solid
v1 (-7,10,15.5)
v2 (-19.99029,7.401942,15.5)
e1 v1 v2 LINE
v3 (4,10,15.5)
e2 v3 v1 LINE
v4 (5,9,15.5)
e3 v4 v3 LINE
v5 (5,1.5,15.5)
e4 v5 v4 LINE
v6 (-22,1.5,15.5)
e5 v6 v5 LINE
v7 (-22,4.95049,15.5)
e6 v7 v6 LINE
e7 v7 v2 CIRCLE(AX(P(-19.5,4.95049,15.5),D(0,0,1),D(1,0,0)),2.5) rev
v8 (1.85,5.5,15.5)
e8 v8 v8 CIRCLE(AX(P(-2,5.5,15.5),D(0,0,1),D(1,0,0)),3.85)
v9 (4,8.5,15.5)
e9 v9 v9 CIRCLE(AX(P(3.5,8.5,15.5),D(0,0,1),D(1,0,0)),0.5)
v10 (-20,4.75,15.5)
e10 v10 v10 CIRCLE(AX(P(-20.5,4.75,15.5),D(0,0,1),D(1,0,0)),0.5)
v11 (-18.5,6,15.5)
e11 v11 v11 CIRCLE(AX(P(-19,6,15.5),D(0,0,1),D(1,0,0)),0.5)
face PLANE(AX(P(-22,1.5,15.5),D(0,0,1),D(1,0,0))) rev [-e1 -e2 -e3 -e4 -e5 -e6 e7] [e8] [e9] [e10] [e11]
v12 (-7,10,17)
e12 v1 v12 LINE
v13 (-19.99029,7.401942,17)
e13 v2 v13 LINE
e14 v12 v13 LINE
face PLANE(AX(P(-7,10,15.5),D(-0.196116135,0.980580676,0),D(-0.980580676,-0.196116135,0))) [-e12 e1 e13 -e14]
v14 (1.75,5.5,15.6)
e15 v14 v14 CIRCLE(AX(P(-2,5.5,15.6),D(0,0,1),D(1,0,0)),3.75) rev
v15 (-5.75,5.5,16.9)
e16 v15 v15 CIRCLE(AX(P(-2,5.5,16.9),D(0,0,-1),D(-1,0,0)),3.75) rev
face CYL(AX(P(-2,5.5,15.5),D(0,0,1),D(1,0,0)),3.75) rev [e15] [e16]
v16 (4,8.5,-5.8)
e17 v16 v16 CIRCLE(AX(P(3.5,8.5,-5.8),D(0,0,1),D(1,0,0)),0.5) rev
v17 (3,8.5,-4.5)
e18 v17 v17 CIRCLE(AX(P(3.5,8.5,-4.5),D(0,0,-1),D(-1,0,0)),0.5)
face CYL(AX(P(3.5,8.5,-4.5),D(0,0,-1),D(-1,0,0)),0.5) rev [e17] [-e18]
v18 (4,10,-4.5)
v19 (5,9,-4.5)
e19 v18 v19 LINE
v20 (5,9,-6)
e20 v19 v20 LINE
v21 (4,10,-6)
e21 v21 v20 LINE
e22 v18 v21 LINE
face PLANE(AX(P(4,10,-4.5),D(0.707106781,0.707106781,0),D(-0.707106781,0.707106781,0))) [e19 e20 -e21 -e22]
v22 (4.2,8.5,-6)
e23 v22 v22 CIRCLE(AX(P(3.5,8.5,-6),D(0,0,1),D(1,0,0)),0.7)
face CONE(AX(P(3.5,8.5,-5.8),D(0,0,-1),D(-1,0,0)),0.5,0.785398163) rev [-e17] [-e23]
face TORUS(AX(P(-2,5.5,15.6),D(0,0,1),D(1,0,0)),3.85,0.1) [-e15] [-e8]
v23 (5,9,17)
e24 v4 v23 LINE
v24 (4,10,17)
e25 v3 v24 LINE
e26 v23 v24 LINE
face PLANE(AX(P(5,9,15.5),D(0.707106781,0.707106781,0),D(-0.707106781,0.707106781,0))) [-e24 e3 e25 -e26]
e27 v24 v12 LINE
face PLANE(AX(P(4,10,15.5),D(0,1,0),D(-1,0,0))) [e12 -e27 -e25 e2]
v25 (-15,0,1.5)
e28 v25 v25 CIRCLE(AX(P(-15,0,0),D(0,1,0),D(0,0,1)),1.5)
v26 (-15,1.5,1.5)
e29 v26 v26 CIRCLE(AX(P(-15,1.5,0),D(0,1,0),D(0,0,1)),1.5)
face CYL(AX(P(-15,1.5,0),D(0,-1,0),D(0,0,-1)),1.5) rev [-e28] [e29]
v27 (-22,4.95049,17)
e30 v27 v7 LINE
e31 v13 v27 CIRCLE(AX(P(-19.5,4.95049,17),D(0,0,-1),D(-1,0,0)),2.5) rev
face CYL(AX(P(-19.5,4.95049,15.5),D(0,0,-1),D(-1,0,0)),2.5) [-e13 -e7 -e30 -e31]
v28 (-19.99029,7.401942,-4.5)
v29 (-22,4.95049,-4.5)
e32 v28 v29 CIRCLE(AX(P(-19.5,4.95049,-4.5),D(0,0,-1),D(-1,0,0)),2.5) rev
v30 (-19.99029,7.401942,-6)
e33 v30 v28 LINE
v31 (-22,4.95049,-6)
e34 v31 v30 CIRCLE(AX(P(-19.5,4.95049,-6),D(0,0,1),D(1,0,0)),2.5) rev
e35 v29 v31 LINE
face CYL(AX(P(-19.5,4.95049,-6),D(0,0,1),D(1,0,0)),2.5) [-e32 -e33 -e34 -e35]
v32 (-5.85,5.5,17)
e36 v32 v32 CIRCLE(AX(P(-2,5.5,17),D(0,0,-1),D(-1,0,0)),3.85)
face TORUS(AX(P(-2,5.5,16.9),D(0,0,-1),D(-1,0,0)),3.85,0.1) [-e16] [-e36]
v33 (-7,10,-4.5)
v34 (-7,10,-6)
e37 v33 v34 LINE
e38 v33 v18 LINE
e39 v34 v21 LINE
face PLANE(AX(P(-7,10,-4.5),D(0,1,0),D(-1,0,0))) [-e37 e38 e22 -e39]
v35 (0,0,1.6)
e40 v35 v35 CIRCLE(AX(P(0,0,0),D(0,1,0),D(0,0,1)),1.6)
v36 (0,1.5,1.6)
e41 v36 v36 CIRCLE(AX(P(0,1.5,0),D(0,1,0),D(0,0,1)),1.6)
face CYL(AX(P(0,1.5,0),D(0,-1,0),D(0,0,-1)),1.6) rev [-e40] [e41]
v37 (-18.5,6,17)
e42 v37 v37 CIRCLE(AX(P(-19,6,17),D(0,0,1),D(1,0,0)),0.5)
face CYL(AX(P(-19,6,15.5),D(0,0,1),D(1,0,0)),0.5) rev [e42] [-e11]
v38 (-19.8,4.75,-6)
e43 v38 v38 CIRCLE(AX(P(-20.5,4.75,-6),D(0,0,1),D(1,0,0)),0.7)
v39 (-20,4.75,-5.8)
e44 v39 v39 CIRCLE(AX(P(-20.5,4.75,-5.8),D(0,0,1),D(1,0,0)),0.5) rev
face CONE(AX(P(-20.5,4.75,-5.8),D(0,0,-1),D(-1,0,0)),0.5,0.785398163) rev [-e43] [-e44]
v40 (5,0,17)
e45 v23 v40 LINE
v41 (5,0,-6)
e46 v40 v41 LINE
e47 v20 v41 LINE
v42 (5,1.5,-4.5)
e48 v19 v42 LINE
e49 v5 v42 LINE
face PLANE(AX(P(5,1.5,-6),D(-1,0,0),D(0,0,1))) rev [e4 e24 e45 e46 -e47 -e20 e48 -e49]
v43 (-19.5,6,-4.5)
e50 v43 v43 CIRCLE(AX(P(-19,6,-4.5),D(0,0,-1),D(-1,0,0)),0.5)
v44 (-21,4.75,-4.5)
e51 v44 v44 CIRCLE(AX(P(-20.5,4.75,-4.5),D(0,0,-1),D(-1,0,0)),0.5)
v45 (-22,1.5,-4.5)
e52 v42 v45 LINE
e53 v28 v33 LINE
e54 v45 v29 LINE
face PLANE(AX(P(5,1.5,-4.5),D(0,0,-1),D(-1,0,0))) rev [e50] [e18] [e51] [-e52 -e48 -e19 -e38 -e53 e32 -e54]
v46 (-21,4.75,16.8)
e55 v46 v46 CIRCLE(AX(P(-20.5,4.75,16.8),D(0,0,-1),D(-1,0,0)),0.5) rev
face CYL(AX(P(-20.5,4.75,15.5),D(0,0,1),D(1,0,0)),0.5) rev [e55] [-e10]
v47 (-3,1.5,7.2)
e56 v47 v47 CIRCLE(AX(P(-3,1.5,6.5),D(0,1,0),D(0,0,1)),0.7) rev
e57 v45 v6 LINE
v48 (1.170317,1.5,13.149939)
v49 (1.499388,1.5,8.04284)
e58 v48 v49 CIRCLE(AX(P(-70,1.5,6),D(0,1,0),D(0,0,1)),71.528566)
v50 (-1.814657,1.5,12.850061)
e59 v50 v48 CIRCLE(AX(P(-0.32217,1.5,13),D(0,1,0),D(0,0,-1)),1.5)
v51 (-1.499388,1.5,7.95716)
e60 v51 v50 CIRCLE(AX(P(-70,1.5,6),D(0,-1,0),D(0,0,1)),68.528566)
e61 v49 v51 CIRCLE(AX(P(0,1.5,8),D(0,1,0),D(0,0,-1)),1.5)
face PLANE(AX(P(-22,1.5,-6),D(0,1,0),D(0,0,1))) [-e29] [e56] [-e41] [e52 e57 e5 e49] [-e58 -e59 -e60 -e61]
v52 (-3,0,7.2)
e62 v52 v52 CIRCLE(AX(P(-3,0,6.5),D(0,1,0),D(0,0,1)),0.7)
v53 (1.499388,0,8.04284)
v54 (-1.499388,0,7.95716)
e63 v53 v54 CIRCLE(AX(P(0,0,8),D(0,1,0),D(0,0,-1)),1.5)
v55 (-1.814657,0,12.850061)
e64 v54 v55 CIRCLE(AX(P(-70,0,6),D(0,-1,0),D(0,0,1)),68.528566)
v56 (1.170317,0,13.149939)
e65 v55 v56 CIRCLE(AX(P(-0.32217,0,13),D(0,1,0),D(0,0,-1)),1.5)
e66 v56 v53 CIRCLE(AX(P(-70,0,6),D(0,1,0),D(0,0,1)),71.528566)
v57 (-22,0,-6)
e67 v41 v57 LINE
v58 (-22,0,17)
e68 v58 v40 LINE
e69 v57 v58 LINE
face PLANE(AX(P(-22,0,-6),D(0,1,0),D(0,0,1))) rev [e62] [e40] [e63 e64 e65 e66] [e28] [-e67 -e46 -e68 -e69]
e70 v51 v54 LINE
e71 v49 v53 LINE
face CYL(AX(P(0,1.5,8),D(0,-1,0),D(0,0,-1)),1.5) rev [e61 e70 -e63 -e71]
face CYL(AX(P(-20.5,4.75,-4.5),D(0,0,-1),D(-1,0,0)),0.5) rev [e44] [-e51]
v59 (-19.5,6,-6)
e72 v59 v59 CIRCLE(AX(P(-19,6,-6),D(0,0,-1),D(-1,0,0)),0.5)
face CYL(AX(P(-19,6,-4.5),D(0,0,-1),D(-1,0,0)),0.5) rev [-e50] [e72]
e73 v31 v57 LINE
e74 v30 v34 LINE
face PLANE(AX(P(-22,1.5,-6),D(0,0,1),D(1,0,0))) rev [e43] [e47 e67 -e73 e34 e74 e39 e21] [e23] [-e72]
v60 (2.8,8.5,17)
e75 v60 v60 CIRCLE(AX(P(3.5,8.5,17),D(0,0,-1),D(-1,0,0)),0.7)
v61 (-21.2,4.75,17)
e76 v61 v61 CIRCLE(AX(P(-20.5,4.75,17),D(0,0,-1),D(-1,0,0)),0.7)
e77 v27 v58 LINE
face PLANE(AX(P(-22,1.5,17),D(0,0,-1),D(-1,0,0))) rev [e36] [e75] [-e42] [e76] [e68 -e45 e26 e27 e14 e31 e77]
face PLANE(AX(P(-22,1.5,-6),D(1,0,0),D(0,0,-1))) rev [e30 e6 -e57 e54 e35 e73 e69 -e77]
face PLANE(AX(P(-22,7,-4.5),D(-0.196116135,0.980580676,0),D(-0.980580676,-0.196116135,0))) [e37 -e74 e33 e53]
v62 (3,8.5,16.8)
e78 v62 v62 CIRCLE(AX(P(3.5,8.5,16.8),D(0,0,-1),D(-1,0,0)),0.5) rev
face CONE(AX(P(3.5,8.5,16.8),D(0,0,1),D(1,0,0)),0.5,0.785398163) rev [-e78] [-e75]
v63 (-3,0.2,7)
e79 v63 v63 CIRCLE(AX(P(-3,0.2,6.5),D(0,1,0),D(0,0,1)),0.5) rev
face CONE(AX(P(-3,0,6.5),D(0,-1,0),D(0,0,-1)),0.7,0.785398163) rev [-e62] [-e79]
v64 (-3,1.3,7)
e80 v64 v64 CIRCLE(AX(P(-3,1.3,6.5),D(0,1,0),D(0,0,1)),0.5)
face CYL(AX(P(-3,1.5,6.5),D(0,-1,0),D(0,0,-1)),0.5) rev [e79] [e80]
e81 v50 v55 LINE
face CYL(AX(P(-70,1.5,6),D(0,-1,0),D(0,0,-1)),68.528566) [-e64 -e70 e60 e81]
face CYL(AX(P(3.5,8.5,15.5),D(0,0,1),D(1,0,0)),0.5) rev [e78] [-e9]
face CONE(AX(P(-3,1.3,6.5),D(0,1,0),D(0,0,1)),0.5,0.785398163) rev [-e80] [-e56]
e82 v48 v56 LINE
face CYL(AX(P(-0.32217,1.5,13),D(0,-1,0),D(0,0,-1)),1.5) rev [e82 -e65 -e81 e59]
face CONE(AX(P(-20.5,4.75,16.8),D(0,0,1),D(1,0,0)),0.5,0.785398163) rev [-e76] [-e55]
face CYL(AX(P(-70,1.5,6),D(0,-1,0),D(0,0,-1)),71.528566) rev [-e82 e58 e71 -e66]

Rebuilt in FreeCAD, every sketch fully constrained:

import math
import FreeCAD as App
import Part
import Sketcher

V = App.Vector
Q = App.Units.Quantity


def edges_at(feature, points):
    """Names of the edges that pass closest to the given points."""
    edges = feature.Shape.Edges
    near = lambda p: min(range(len(edges)), key=lambda i: edges[i].distToShape(Part.Vertex(*p))[0])
    return sorted({f"Edge{near(p) + 1}" for p in points})

doc = App.newDocument("Part")
body = doc.addObject("PartDesign::Body", "Body")

# Sketch on XZ plane
sketch1 = doc.addObject("Sketcher::SketchObject", "Sketch")
body.addObject(sketch1)
sketch1.AttachmentSupport = (doc.XZ_Plane, [""])
sketch1.MapMode = "FlatFace"
sketch1.addGeometry([
    Part.LineSegment(V(-22, -6, 0), V(-22, 17, 0)),  # 0
    Part.LineSegment(V(-22, 17, 0), V(5, 17, 0)),  # 1
    Part.LineSegment(V(5, 17, 0), V(5, -6, 0)),  # 2
    Part.LineSegment(V(5, -6, 0), V(-22, -6, 0)),  # 3
    Part.ArcOfCircle(Part.Circle(V(-0.32217, 13, 0), V(0, 0, 1), 1.5), math.radians(5.736822), math.radians(185.736822)),  # 4
    Part.ArcOfCircle(Part.Circle(V(-70, 6, 0), V(0, 0, 1), 68.528566), math.radians(1.636577), math.radians(5.736822)),  # 5
    Part.ArcOfCircle(Part.Circle(V(0, 8, 0), V(0, 0, 1), 1.5), math.radians(-178.363423), math.radians(1.636577)),  # 6
    Part.ArcOfCircle(Part.Circle(V(-70.000001, 6, 0), V(0, 0, 1), 71.528566), math.radians(1.636577), math.radians(5.736822)),  # 7
    Part.Circle(V(-3, 6.5, 0), V(0, 0, 1), 0.5),  # 8
    Part.Circle(V(-15, 0, 0), V(0, 0, 1), 1.5),  # 9
    Part.Circle(V(0, 0, 0), V(0, 0, 1), 1.6),  # 10
], False)
sketch1.addConstraint([
    Sketcher.Constraint("Coincident", 0, 2, 1, 1),
    Sketcher.Constraint("Coincident", 1, 2, 2, 1),
    Sketcher.Constraint("Coincident", 2, 2, 3, 1),
    Sketcher.Constraint("Coincident", 3, 2, 0, 1),
    Sketcher.Constraint("Tangent", 4, 2, 5, 2),
    Sketcher.Constraint("Tangent", 5, 1, 6, 1),
    Sketcher.Constraint("Tangent", 6, 2, 7, 1),
    Sketcher.Constraint("Tangent", 7, 2, 4, 1),
    Sketcher.Constraint("Vertical", 0),
    Sketcher.Constraint("Horizontal", 1),
    Sketcher.Constraint("Vertical", 2),
    Sketcher.Constraint("Horizontal", 3),
    Sketcher.Constraint("Coincident", 10, 3, -1, 1),
    Sketcher.Constraint("Coincident", 7, 3, 5, 3),
    Sketcher.Constraint("Equal", 6, 9),
    Sketcher.Constraint("PointOnObject", 6, 3, -2),
    Sketcher.Constraint("PointOnObject", 9, 3, -1),
    Sketcher.Constraint("Diameter", 8, 1.0),
    Sketcher.Constraint("Diameter", 9, 3.0),
    Sketcher.Constraint("Diameter", 10, 3.2),
    Sketcher.Constraint("DistanceX", 1, 1, 1, 2, 27.0),
    Sketcher.Constraint("DistanceY", 0, 1, 0, 2, 23.0),
    Sketcher.Constraint("DistanceY", -1, 1, 4, 3, 13.0),
    Sketcher.Constraint("DistanceX", 5, 3, -1, 1, 70.0),
    Sketcher.Constraint("DistanceY", -1, 1, 5, 3, 6.0),
    Sketcher.Constraint("DistanceY", -1, 1, 6, 3, 8.0),
    Sketcher.Constraint("DistanceX", 8, 3, -1, 1, 3.0),
    Sketcher.Constraint("DistanceX", 9, 3, -1, 1, 15.0),
    Sketcher.Constraint("DistanceX", 0, 2, -1, 1, 22.0),
    Sketcher.Constraint("DistanceY", -1, 1, 0, 2, 17.0),
    Sketcher.Constraint("DistanceY", -1, 1, 8, 3, 6.5),
])
pad1 = doc.addObject("PartDesign::Pad", "Pad")
body.addObject(pad1)
pad1.Profile = sketch1
pad1.Length = 1.5
pad1.Reversed = True

# Sketch on XY plane
sketch2 = doc.addObject("Sketcher::SketchObject", "Sketch001")
body.addObject(sketch2)
sketch2.AttachmentSupport = (doc.XY_Plane, [""])
sketch2.MapMode = "FlatFace"
sketch2.AttachmentOffset = App.Placement(V(0, 0, 17), App.Rotation())
sketch2.addGeometry([
    Part.LineSegment(V(-22, 1.5, 0), V(5, 1.5, 0)),  # 0
    Part.LineSegment(V(5, 1.5, 0), V(5, 9, 0)),  # 1
    Part.LineSegment(V(5, 9, 0), V(4, 10, 0)),  # 2
    Part.LineSegment(V(4, 10, 0), V(-7, 10, 0)),  # 3
    Part.LineSegment(V(-7, 10, 0), V(-22, 7, 0)),  # 4
    Part.LineSegment(V(-22, 7, 0), V(-22, 1.5, 0)),  # 5
    Part.Circle(V(-20.5, 4.75, 0), V(0, 0, 1), 0.5),  # 6
    Part.Circle(V(-19, 6, 0), V(0, 0, 1), 0.5),  # 7
    Part.Circle(V(-2, 5.5, 0), V(0, 0, 1), 3.75),  # 8
    Part.Circle(V(3.5, 8.5, 0), V(0, 0, 1), 0.5),  # 9
], False)
sketch2.addConstraint([
    Sketcher.Constraint("Coincident", 0, 2, 1, 1),
    Sketcher.Constraint("Coincident", 1, 2, 2, 1),
    Sketcher.Constraint("Coincident", 2, 2, 3, 1),
    Sketcher.Constraint("Coincident", 3, 2, 4, 1),
    Sketcher.Constraint("Coincident", 4, 2, 5, 1),
    Sketcher.Constraint("Coincident", 5, 2, 0, 1),
    Sketcher.Constraint("Horizontal", 0),
    Sketcher.Constraint("Vertical", 1),
    Sketcher.Constraint("Horizontal", 3),
    Sketcher.Constraint("Vertical", 5),
    Sketcher.Constraint("Equal", 6, 7),
    Sketcher.Constraint("Equal", 7, 9),
    Sketcher.Constraint("Diameter", 6, 1.0),
    Sketcher.Constraint("Diameter", 8, 7.5),
    Sketcher.Constraint("DistanceX", 0, 1, 0, 2, 27.0),
    Sketcher.Constraint("DistanceX", 3, 2, 3, 1, 11.0),
    Sketcher.Constraint("Angle", 2, Q("135 deg")),
    Sketcher.Constraint("DistanceY", 1, 1, 1, 2, 7.5),
    Sketcher.Constraint("DistanceY", 5, 2, 5, 1, 5.5),
    Sketcher.Constraint("DistanceX", 7, 3, -1, 1, 19.0),
    Sketcher.Constraint("DistanceY", -1, 1, 7, 3, 6.0),
    Sketcher.Constraint("DistanceX", 8, 3, -1, 1, 2.0),
    Sketcher.Constraint("DistanceX", -1, 1, 0, 2, 5.0),
    Sketcher.Constraint("DistanceY", -1, 1, 1, 2, 9.0),
    Sketcher.Constraint("DistanceX", -1, 1, 2, 2, 4.0),
    Sketcher.Constraint("DistanceY", 8, 3, 9, 3, 3.0),
    Sketcher.Constraint("DistanceX", 6, 3, 9, 3, 24.0),
    Sketcher.Constraint("DistanceY", 0, 2, 9, 3, 7.0),
    Sketcher.Constraint("DistanceX", 6, 3, -1, 1, 20.5),
    Sketcher.Constraint("DistanceY", -1, 1, 6, 3, 4.75),
])
pad2 = doc.addObject("PartDesign::Pad", "Pad001")
body.addObject(pad2)
pad2.Profile = sketch2
pad2.Length = 1.5
pad2.Reversed = True

# Sketch on XY plane
sketch3 = doc.addObject("Sketcher::SketchObject", "Sketch002")
body.addObject(sketch3)
sketch3.AttachmentSupport = (doc.XY_Plane, [""])
sketch3.MapMode = "FlatFace"
sketch3.AttachmentOffset = App.Placement(V(0, 0, -6), App.Rotation())
sketch3.addGeometry([
    Part.LineSegment(V(5, 1.5, 0), V(-22, 1.5, 0)),  # 0
    Part.LineSegment(V(-22, 1.5, 0), V(-22, 7, 0)),  # 1
    Part.LineSegment(V(-22, 7, 0), V(-7, 10, 0)),  # 2
    Part.LineSegment(V(-7, 10, 0), V(4, 10, 0)),  # 3
    Part.LineSegment(V(4, 10, 0), V(5, 9, 0)),  # 4
    Part.LineSegment(V(5, 9, 0), V(5, 1.5, 0)),  # 5
    Part.Circle(V(-20.5, 4.75, 0), V(0, 0, 1), 0.5),  # 6
    Part.Circle(V(-19, 6, 0), V(0, 0, 1), 0.5),  # 7
    Part.Circle(V(3.5, 8.5, 0), V(0, 0, 1), 0.5),  # 8
], False)
sketch3.addConstraint([
    Sketcher.Constraint("Coincident", 0, 2, 1, 1),
    Sketcher.Constraint("Coincident", 1, 2, 2, 1),
    Sketcher.Constraint("Coincident", 2, 2, 3, 1),
    Sketcher.Constraint("Coincident", 3, 2, 4, 1),
    Sketcher.Constraint("Coincident", 4, 2, 5, 1),
    Sketcher.Constraint("Coincident", 5, 2, 0, 1),
    Sketcher.Constraint("Horizontal", 0),
    Sketcher.Constraint("Vertical", 1),
    Sketcher.Constraint("Horizontal", 3),
    Sketcher.Constraint("Vertical", 5),
    Sketcher.Constraint("Equal", 6, 7),
    Sketcher.Constraint("Equal", 7, 8),
    Sketcher.Constraint("Diameter", 6, 1.0),
    Sketcher.Constraint("DistanceX", 0, 2, 0, 1, 27.0),
    Sketcher.Constraint("DistanceX", 3, 1, 3, 2, 11.0),
    Sketcher.Constraint("Angle", 4, Q("-45 deg")),
    Sketcher.Constraint("DistanceY", 1, 1, 1, 2, 5.5),
    Sketcher.Constraint("DistanceY", 5, 2, 5, 1, 7.5),
    Sketcher.Constraint("DistanceX", 7, 3, -1, 1, 19.0),
    Sketcher.Constraint("DistanceY", -1, 1, 7, 3, 6.0),
    Sketcher.Constraint("DistanceX", 0, 2, -1, 1, 22.0),
    Sketcher.Constraint("DistanceY", -1, 1, 1, 2, 7.0),
    Sketcher.Constraint("DistanceX", 2, 2, -1, 1, 7.0),
    Sketcher.Constraint("DistanceX", 6, 3, 8, 3, 24.0),
    Sketcher.Constraint("DistanceY", 0, 2, 8, 3, 7.0),
    Sketcher.Constraint("DistanceX", 6, 3, -1, 1, 20.5),
    Sketcher.Constraint("DistanceY", -1, 1, 6, 3, 4.75),
])
pad3 = doc.addObject("PartDesign::Pad", "Pad002")
body.addObject(pad3)
pad3.Profile = sketch3
pad3.Length = 1.5
doc.recompute()

fillet = doc.addObject("PartDesign::Fillet", "Fillet")
body.addObject(fillet)
fillet.Base = (pad3, edges_at(pad3, [(-5.75, 5.5, 15.5), (-5.75, 5.5, 17)]))
fillet.Radius = 0.1
doc.recompute()

chamfer = doc.addObject("PartDesign::Chamfer", "Chamfer")
body.addObject(chamfer)
chamfer.Base = (fillet, edges_at(fillet, [
    (-3, 0, 6),
    (-3, 1.5, 6),
    (3, 8.5, 17),
    (-21, 4.75, 17),
    (3, 8.5, -6),
    (-21, 4.75, -6),
]))
chamfer.Size = 0.2
doc.recompute()

fillet2 = doc.addObject("PartDesign::Fillet", "Fillet001")
body.addObject(fillet2)
fillet2.Base = (chamfer, edges_at(chamfer, [(-22, 7, 16.25), (-22, 7, -5.25)]))
fillet2.Radius = 2.5

doc.recompute()
